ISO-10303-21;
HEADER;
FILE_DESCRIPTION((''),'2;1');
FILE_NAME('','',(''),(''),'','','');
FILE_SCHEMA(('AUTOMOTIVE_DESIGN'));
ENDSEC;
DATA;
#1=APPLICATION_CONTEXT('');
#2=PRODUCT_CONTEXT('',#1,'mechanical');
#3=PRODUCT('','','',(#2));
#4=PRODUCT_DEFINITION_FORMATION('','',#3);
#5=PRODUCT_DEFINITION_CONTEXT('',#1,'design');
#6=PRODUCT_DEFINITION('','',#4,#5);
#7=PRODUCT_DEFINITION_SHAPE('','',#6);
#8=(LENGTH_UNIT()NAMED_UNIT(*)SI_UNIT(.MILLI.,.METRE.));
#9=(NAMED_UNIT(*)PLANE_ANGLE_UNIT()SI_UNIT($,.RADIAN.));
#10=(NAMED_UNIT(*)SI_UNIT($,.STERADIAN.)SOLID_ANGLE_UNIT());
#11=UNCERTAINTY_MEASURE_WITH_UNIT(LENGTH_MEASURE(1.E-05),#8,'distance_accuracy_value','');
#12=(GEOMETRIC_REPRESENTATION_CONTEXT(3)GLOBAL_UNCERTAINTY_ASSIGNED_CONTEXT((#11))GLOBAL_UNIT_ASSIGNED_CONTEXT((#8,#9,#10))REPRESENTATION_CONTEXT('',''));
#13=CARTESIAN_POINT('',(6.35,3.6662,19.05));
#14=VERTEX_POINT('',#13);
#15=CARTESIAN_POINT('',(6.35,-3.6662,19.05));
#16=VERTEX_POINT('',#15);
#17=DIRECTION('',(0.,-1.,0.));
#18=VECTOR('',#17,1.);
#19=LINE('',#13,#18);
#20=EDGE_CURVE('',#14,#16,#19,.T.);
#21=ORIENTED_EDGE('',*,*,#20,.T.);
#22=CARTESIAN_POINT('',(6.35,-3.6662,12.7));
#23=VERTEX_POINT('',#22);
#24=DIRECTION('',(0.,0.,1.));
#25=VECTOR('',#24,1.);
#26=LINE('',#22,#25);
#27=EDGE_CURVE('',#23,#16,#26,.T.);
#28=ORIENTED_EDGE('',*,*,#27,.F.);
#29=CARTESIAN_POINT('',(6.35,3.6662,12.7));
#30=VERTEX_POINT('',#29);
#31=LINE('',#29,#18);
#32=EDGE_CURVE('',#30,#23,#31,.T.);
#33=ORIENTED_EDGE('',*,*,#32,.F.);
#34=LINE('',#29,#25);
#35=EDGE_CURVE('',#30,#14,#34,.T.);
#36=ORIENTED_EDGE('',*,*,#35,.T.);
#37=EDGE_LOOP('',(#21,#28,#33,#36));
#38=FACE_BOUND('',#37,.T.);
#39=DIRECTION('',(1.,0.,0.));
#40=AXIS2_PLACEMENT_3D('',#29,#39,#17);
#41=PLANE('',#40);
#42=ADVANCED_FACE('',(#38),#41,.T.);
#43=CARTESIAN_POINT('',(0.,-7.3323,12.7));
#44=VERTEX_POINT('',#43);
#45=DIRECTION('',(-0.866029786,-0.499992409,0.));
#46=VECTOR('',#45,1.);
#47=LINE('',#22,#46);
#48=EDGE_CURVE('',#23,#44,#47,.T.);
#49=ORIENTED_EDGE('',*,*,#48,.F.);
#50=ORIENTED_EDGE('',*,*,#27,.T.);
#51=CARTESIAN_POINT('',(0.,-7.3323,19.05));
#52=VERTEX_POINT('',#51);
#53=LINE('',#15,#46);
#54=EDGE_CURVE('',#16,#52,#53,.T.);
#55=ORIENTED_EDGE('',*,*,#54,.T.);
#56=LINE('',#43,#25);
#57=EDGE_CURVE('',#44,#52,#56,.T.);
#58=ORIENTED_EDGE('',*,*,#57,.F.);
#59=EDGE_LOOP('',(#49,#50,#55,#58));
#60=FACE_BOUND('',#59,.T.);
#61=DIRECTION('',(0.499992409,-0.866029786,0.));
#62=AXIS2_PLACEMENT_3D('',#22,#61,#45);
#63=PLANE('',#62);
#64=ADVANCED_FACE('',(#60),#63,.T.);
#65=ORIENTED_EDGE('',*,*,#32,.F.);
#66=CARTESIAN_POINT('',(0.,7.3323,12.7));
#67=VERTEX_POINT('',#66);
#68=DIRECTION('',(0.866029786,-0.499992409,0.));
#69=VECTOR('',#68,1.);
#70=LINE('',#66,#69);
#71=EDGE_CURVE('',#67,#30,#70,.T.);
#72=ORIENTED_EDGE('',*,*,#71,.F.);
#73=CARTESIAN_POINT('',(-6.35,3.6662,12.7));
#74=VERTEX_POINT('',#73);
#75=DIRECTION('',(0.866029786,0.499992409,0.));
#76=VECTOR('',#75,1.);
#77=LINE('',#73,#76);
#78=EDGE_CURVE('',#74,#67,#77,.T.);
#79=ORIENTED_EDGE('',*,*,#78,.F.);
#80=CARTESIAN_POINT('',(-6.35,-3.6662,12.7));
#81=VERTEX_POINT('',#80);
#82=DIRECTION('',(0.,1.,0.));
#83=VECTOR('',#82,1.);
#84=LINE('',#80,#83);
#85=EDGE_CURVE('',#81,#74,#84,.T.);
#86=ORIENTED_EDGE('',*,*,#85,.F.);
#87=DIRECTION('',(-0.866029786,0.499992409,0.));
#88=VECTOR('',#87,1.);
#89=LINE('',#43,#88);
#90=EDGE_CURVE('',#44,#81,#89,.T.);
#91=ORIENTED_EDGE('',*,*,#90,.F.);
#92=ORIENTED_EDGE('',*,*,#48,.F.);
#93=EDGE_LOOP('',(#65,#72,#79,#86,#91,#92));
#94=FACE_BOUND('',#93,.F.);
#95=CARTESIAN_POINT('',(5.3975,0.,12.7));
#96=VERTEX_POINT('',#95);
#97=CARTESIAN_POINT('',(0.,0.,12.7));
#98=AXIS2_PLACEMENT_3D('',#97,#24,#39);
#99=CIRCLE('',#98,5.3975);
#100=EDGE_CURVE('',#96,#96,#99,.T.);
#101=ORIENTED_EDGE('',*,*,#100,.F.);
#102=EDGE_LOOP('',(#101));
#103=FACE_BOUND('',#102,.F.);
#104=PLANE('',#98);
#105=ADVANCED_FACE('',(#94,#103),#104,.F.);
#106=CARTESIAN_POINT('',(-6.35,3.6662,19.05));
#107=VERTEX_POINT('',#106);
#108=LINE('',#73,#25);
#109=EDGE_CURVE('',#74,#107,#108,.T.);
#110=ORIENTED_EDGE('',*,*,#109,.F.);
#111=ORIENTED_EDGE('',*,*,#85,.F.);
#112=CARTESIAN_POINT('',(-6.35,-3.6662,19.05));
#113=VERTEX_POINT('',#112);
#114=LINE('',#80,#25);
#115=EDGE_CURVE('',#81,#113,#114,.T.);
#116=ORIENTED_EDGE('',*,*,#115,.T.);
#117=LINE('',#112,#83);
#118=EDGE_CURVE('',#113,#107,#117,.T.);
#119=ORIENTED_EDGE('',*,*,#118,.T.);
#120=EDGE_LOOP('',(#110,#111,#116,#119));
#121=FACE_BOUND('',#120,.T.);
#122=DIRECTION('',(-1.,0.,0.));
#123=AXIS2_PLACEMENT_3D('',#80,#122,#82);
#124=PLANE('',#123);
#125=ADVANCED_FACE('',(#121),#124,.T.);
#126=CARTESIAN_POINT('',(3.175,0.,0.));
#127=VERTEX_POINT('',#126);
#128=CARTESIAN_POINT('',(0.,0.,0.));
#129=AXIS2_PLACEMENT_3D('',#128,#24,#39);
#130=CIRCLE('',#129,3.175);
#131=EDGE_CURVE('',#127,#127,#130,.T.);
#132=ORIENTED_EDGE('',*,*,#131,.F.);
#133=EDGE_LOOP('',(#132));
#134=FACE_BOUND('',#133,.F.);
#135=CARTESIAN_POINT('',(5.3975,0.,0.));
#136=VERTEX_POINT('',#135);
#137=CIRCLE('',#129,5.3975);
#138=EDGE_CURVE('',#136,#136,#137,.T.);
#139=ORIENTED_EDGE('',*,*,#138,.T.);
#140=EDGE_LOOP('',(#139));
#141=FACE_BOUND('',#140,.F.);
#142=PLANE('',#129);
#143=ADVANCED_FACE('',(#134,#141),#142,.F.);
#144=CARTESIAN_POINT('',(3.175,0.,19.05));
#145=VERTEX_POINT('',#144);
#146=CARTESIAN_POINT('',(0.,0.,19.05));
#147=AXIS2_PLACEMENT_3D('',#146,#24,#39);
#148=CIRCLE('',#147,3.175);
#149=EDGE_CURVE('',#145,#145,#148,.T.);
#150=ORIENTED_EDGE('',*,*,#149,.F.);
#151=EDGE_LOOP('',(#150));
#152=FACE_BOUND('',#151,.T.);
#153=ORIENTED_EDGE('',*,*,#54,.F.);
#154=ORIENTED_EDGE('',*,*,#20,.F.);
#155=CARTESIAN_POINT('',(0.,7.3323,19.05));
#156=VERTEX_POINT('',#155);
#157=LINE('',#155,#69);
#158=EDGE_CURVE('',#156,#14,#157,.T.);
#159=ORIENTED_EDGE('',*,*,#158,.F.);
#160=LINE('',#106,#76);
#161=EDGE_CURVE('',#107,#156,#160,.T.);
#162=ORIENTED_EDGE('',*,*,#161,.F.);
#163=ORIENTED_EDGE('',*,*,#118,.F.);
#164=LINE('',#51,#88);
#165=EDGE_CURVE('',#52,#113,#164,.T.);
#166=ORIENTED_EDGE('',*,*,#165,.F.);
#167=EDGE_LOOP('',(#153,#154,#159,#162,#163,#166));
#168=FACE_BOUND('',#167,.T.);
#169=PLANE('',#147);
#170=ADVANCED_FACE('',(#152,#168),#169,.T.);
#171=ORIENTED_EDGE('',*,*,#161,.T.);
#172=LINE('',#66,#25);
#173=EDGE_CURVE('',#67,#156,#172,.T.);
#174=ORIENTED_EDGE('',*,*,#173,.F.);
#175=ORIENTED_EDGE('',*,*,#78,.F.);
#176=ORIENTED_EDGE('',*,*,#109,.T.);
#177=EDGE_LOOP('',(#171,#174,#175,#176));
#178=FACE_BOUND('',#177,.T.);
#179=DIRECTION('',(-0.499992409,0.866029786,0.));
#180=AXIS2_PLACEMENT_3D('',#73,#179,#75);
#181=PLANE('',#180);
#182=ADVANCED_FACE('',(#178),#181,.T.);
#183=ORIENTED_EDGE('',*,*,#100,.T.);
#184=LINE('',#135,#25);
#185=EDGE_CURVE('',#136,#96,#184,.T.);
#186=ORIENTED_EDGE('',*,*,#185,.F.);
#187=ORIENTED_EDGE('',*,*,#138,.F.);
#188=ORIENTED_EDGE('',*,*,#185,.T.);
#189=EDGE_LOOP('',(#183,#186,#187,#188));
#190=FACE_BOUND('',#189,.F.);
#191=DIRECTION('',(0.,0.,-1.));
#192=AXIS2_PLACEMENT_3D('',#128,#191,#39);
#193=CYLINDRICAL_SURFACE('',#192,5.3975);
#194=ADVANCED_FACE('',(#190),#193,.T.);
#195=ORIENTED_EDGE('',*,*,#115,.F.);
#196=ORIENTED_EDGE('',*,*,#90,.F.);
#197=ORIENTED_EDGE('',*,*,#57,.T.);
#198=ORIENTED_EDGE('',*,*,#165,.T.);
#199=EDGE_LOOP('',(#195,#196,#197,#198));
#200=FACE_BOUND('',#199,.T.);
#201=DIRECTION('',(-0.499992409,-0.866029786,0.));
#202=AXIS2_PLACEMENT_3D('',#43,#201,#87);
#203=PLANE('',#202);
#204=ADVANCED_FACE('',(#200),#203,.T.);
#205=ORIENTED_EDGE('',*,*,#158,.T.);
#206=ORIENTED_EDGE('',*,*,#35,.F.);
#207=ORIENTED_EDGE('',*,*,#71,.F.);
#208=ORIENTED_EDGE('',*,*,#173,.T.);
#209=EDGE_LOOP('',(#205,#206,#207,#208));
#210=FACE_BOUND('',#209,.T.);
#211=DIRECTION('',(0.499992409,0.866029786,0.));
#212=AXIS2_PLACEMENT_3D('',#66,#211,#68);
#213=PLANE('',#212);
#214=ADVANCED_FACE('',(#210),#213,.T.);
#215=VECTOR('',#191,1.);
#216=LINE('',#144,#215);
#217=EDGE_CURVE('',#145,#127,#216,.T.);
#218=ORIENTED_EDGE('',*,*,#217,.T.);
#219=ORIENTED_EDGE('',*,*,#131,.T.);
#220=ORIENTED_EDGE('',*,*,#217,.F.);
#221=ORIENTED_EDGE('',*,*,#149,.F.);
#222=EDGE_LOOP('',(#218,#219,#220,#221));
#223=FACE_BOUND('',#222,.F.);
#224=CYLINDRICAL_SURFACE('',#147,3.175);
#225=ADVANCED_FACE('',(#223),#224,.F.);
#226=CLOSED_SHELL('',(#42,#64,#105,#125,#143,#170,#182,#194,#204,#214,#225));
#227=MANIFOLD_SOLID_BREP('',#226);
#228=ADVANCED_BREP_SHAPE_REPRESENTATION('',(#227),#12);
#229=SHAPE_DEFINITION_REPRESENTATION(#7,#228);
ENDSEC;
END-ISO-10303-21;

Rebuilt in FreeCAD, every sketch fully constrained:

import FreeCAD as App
import Part
import Sketcher
Q = App.Units.Quantity


def add_polygon(sketch, points):
    """Adds a closed chain of lines whose ends are joined by coincident constraints."""
    first, n = sketch.GeometryCount, len(points)
    for a, b in zip(points, points[1:] + points[:1]):
        sketch.addGeometry(Part.LineSegment(App.Vector(*a, 0), App.Vector(*b, 0)), False)
    for i in range(n):
        sketch.addConstraint(Sketcher.Constraint("Coincident", first + i, 2, first + (i + 1) % n, 1))

doc = App.newDocument("Part")
body = doc.addObject("PartDesign::Body", "Body")

sketch1 = body.newObject("Sketcher::SketchObject", "Sketch")
sketch1.AttachmentSupport = (doc.getObject("XY_Plane"), [""])
sketch1.MapMode = "FlatFace"
sketch1.addGeometry(Part.Circle(App.Vector(0, 0, 0), App.Vector(0, 0, 1), 5), False)
sketch1.addConstraint([
    Sketcher.Constraint("Coincident", 0, 3, -1, 1),
    Sketcher.Constraint("Diameter", 0, Q("0.425 in")),
])
pad1 = body.newObject("PartDesign::Pad", "Pad")
pad1.Profile = sketch1
pad1.Length = Q("0.5 in")

sketch2 = body.newObject("Sketcher::SketchObject", "Sketch001")
sketch2.AttachmentSupport = (doc.getObject("XY_Plane"), [""])
sketch2.MapMode = "FlatFace"
sketch2.AttachmentOffset = App.Placement(App.Vector(0, 0, 0.5 * 25.4), App.Rotation())
add_polygon(sketch2, [(6, 4), (0, 7), (-6, 4), (-6, -4), (0, -7), (6, -4)])
sketch2.addConstraint([
    Sketcher.Constraint("Vertical", 2),
    Sketcher.Constraint("Vertical", 5),
    Sketcher.Constraint("Symmetric", 0, 2, 3, 2, -1, 1),
    Sketcher.Constraint("Symmetric", 1, 2, 4, 2, -1, 1),
    Sketcher.Constraint("PointOnObject", 0, 2, -2),
    Sketcher.Constraint("Parallel", 0, 3),
    Sketcher.Constraint("Horizontal", 2, 2, 4, 2),
    Sketcher.Constraint("DistanceX", 2, 2, 4, 2, Q("0.5 in")),
    Sketcher.Constraint("Angle", 0, Q("150.0005 deg")),
    Sketcher.Constraint("DistanceY", 2, 2, 0, 2, Q("0.433 in")),
])
pad2 = body.newObject("PartDesign::Pad", "Pad001")
pad2.Profile = sketch2
pad2.Length = Q("0.25 in")

sketch3 = body.newObject("Sketcher::SketchObject", "Sketch002")
sketch3.AttachmentSupport = (doc.getObject("XY_Plane"), [""])
sketch3.MapMode = "FlatFace"
sketch3.AttachmentOffset = App.Placement(App.Vector(0, 0, 0.75 * 25.4), App.Rotation())
sketch3.addGeometry(Part.Circle(App.Vector(0, 0, 0), App.Vector(0, 0, 1), 3.2), False)
sketch3.addConstraint([
    Sketcher.Constraint("Coincident", 0, 3, -1, 1),
    Sketcher.Constraint("Diameter", 0, Q("0.25 in")),
])
pocket1 = body.newObject("PartDesign::Pocket", "Pocket")
pocket1.Profile = sketch3
pocket1.Type = "ThroughAll"

doc.recompute()
